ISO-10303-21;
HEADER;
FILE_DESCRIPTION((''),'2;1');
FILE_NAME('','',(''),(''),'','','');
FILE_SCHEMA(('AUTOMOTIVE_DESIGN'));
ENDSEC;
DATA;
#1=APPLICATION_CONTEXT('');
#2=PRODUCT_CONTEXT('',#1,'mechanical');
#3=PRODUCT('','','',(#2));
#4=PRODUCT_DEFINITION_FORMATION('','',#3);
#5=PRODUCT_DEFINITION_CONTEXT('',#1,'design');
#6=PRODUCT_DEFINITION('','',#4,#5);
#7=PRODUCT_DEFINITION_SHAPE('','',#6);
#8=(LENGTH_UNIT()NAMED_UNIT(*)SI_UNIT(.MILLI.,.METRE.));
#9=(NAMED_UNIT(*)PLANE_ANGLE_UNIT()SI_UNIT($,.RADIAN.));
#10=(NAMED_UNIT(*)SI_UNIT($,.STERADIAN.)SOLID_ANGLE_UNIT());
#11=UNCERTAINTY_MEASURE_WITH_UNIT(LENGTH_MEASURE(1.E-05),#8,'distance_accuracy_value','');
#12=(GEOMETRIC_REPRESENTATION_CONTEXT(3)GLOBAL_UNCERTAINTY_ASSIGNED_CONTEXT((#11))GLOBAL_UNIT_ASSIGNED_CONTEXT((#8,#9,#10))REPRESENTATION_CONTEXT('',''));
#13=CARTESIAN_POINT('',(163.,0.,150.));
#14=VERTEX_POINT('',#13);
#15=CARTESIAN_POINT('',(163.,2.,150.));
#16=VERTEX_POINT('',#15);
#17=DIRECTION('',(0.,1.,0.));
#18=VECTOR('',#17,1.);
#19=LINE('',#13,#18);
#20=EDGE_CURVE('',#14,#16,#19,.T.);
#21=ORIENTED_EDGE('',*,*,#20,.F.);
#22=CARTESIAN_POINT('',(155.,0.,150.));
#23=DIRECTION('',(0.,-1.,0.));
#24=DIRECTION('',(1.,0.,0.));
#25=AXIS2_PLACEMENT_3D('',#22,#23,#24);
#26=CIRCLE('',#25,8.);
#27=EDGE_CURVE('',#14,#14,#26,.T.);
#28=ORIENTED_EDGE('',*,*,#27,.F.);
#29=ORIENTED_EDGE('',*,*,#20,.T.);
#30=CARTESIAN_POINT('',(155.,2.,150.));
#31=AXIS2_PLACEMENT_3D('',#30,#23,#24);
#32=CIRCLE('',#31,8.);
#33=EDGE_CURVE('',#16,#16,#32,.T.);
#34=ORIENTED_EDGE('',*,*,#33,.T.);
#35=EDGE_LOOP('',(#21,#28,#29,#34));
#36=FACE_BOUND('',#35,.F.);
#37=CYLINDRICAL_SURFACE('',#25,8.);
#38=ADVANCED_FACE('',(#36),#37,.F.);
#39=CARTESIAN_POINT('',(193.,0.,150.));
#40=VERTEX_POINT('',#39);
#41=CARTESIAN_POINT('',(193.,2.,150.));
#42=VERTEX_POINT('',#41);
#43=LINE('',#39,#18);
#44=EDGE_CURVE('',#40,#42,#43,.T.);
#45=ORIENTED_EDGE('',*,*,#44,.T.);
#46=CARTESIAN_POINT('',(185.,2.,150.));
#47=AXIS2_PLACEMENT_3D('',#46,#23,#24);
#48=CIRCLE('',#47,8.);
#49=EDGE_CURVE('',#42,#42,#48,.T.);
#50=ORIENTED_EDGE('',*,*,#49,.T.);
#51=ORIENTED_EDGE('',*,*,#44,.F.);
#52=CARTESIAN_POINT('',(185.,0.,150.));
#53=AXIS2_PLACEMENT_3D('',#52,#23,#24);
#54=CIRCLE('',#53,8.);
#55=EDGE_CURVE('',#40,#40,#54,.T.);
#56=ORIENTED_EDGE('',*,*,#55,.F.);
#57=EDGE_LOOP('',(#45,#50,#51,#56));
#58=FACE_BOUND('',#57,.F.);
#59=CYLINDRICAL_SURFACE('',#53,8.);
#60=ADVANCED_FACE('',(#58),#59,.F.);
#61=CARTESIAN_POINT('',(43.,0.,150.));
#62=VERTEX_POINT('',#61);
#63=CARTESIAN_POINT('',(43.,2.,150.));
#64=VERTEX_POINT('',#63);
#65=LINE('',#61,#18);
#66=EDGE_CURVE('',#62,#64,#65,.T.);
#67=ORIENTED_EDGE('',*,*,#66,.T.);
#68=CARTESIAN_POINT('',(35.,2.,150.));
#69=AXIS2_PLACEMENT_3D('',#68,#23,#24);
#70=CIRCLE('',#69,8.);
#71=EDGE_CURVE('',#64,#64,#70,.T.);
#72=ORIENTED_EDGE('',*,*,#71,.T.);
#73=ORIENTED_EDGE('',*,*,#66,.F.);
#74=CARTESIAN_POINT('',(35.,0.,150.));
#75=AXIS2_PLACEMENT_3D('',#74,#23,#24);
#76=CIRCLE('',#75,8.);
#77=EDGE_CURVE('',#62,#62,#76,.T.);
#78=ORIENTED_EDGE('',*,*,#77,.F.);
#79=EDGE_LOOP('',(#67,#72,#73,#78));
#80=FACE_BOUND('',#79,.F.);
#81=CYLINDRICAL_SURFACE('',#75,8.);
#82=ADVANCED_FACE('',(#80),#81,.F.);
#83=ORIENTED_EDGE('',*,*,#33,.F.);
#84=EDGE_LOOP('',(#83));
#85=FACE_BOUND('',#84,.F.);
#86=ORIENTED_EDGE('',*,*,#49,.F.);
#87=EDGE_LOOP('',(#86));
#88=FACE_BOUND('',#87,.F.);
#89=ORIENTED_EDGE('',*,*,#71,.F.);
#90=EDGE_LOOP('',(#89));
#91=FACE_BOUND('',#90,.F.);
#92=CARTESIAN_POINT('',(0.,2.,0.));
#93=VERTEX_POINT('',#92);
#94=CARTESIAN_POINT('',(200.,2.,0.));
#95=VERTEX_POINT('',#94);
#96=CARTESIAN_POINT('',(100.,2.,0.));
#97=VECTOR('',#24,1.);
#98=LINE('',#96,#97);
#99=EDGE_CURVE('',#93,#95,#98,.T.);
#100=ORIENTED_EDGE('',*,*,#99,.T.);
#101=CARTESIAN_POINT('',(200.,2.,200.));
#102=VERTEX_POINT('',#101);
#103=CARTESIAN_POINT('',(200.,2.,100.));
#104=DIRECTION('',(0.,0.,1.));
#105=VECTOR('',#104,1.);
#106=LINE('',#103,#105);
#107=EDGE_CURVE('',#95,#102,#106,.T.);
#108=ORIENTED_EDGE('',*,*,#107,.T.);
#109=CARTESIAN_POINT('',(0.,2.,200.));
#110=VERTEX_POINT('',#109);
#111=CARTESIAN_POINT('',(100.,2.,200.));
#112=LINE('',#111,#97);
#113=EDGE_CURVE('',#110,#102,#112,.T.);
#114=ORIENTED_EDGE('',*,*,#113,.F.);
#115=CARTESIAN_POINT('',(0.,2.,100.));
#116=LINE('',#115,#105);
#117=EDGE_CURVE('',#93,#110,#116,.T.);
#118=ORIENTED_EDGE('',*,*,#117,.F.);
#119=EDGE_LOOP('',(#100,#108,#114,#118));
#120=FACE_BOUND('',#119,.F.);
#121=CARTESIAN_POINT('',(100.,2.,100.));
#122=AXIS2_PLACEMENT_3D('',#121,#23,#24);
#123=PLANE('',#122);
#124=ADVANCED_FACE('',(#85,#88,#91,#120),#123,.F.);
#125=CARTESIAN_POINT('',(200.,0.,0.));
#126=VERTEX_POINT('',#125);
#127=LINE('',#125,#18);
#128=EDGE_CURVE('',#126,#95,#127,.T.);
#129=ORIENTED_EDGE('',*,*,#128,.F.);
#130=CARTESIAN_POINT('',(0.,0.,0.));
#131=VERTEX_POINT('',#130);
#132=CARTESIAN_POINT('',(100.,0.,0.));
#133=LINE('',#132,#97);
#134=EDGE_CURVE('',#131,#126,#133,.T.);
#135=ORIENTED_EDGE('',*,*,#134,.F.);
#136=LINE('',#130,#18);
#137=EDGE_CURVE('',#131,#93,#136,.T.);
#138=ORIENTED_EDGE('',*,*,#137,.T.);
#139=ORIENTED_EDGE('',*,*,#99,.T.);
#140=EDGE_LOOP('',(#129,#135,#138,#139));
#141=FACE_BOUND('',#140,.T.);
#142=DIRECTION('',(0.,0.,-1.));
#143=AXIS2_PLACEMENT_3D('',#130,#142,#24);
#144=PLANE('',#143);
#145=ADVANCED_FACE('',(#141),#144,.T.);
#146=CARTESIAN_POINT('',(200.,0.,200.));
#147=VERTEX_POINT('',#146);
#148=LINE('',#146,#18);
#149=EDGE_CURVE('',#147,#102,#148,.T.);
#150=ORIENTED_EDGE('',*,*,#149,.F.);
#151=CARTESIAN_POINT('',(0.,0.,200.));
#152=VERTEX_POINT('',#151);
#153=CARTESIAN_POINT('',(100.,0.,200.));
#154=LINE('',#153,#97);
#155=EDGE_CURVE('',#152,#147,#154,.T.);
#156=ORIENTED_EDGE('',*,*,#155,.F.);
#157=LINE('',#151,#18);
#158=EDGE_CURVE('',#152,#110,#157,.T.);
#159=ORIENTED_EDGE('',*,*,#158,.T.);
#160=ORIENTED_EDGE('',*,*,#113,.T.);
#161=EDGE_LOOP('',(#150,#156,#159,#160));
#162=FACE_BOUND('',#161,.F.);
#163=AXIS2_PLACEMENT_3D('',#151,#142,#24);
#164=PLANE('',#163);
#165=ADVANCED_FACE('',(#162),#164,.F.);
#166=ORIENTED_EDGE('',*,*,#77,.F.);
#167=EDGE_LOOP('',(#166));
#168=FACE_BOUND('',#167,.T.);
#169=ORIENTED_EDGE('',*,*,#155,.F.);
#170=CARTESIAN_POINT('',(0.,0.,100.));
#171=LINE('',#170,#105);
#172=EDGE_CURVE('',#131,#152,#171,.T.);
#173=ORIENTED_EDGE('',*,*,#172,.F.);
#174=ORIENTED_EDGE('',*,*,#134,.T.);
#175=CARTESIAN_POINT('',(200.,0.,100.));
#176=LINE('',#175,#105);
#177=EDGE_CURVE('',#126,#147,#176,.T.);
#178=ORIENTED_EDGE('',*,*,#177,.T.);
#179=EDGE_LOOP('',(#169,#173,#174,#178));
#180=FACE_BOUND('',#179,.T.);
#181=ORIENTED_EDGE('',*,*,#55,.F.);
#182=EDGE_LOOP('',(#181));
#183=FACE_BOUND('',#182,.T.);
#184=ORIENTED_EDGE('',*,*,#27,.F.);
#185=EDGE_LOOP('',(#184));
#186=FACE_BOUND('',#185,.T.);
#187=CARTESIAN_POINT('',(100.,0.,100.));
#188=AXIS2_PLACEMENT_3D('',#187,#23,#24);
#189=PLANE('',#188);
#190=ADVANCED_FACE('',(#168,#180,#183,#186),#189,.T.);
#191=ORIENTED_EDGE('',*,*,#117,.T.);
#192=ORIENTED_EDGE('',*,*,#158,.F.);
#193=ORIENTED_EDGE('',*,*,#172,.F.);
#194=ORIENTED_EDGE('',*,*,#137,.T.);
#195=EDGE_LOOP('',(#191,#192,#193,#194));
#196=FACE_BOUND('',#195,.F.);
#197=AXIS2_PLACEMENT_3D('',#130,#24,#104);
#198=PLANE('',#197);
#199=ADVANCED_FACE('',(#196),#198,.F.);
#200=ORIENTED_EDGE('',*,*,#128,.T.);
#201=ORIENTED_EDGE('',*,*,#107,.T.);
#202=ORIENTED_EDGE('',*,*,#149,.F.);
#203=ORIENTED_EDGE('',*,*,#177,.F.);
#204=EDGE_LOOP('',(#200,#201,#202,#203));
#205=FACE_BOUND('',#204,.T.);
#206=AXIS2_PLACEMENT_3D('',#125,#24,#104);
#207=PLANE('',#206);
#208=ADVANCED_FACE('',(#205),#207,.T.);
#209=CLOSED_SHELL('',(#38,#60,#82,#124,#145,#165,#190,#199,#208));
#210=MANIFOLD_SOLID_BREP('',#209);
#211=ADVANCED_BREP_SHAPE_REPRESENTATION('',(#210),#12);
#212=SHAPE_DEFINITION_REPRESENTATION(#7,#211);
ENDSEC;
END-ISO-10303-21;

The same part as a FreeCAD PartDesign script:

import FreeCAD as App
import Part
import Sketcher
from FreeCAD import Vector
Q = App.Units.Quantity

doc = App.newDocument("Part")
params = doc.addObject("Spreadsheet::Sheet", "Params")
for row, (alias, value) in enumerate([
    ("sketch1_width", "200 mm"),
    ("pad1_length", "2 mm"),
    ("sketch2_diameter", "16 mm"),
], start=1):
    params.set(f"A{row}", alias)
    params.set(f"B{row}", "=" + value)
    params.setAlias(f"B{row}", alias)

body = doc.addObject("PartDesign::Body", "Body")

# Sketch on XZ plane
sketch1 = body.newObject("Sketcher::SketchObject", "Sketch")
sketch1.AttachmentSupport = (doc.getObject("XZ_Plane"), [""])
sketch1.MapMode = "FlatFace"
sketch1.addGeometry([
    Part.LineSegment(Vector(0, 200, 0), Vector(0, 0, 0)),
    Part.LineSegment(Vector(0, 0, 0), Vector(200, 0, 0)),
    Part.LineSegment(Vector(200, 0, 0), Vector(200, 200, 0)),
    Part.LineSegment(Vector(200, 200, 0), Vector(0, 200, 0)),
], False)
sketch1.addConstraint([
    Sketcher.Constraint("Coincident", 0, 2, 1, 1),
    Sketcher.Constraint("Coincident", 1, 2, 2, 1),
    Sketcher.Constraint("Coincident", 2, 2, 3, 1),
    Sketcher.Constraint("Coincident", 3, 2, 0, 1),
    Sketcher.Constraint("Vertical", 0),
    Sketcher.Constraint("Horizontal", 1),
    Sketcher.Constraint("Vertical", 2),
    Sketcher.Constraint("Horizontal", 3),
    Sketcher.Constraint("Coincident", 0, 2, -1, 1),
    Sketcher.Constraint("Equal", 3, 0),
    Sketcher.Constraint("DistanceX", 1, 1, 1, 2, Q("200 mm")),
])
sketch1.setExpression("Constraints[10]", "Params.sketch1_width")
pad1 = body.newObject("PartDesign::Pad", "Pad")
pad1.Profile = sketch1
pad1.setExpression("Length", "Params.pad1_length")
pad1.Reversed = True

# Sketch on XZ plane
sketch2 = body.newObject("Sketcher::SketchObject", "Sketch001")
sketch2.AttachmentSupport = (doc.getObject("XZ_Plane"), [""])
sketch2.MapMode = "FlatFace"
sketch2.addGeometry([
    Part.Circle(Vector(35, 150, 0), Vector(0, 0, 1), 8),
    Part.Circle(Vector(155, 150, 0), Vector(0, 0, 1), 8),
    Part.Circle(Vector(185, 150, 0), Vector(0, 0, 1), 8),
], False)
sketch2.addConstraint([
    Sketcher.Constraint("Equal", 0, 1),
    Sketcher.Constraint("Equal", 1, 2),
    Sketcher.Constraint("Horizontal", 0, 3, 1, 3),
    Sketcher.Constraint("Horizontal", 1, 3, 2, 3),
    Sketcher.Constraint("Diameter", 0, Q("16 mm")),
    Sketcher.Constraint("DistanceX", -1, 1, 0, 3, Q("35 mm")),
    Sketcher.Constraint("DistanceY", -1, 1, 0, 3, Q("150 mm")),
    Sketcher.Constraint("DistanceX", -1, 1, 1, 3, Q("155 mm")),
    Sketcher.Constraint("DistanceX", -1, 1, 2, 3, Q("185 mm")),
])
sketch2.setExpression("Constraints[4]", "Params.sketch2_diameter")
pocket1 = body.newObject("PartDesign::Pocket", "Pocket")
pocket1.Profile = sketch2
pocket1.Type = "ThroughAll"

doc.recompute()
